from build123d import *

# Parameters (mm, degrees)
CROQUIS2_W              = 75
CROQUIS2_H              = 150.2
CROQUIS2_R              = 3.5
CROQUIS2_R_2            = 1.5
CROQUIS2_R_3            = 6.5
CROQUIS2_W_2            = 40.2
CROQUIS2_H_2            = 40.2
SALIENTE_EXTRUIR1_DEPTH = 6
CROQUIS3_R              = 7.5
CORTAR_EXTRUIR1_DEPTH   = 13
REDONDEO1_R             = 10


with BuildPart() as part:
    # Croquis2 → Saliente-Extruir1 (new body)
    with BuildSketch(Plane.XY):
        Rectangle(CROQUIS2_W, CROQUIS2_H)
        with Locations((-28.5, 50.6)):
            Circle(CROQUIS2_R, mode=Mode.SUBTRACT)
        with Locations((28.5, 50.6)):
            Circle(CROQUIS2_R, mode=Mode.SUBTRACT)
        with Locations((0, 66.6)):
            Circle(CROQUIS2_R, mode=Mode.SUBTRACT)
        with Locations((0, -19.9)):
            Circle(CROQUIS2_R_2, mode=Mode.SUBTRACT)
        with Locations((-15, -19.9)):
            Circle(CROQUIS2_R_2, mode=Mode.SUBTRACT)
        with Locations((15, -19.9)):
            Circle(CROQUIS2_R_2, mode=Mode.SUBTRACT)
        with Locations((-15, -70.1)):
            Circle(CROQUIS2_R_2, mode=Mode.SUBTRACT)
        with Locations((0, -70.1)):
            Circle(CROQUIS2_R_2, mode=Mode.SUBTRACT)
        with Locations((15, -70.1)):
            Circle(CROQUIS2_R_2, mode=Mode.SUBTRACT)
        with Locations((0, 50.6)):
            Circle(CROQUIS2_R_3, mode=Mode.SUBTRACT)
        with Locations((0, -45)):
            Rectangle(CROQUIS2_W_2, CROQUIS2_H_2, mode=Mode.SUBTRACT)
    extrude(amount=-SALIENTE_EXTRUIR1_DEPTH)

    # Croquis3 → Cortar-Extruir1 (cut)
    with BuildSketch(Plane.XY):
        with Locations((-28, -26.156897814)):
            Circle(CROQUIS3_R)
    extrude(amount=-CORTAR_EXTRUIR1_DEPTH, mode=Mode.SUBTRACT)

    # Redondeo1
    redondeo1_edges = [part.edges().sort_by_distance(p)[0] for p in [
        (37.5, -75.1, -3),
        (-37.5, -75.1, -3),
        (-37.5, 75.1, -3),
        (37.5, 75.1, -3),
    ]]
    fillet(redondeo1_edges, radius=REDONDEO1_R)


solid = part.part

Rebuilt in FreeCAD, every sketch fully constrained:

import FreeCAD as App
import Part
import Sketcher


def edges_at(feature, points):
    """Names of the edges that pass closest to the given points."""
    edges = feature.Shape.Edges
    near = lambda p: min(range(len(edges)), key=lambda i: edges[i].distToShape(Part.Vertex(*p))[0])
    return sorted({f"Edge{near(p) + 1}" for p in points})


def add_polygon(sketch, points):
    """Adds a closed chain of lines whose ends are joined by coincident constraints."""
    first, n = sketch.GeometryCount, len(points)
    for a, b in zip(points, points[1:] + points[:1]):
        sketch.addGeometry(Part.LineSegment(App.Vector(*a, 0), App.Vector(*b, 0)), False)
    for i in range(n):
        sketch.addConstraint(Sketcher.Constraint("Coincident", first + i, 2, first + (i + 1) % n, 1))

doc = App.newDocument("Part")
body = doc.addObject("PartDesign::Body", "Body")

# Sketch on XY plane
sketch1 = body.newObject("Sketcher::SketchObject", "Sketch")
sketch1.AttachmentSupport = (doc.getObject("XY_Plane"), [""])
sketch1.MapMode = "FlatFace"
add_polygon(sketch1, [(-37.5, 75.1), (-37.5, -75.1), (37.5, -75.1), (37.5, 75.1)])  # lines 0-3
sketch1.addGeometry(Part.Circle(App.Vector(-15, -70.1, 0), App.Vector(0, 0, 1), 1.5), False)  # 4
sketch1.addGeometry(Part.Circle(App.Vector(-15, -19.9, 0), App.Vector(0, 0, 1), 1.5), False)  # 5
sketch1.addGeometry(Part.Circle(App.Vector(0, -70.1, 0), App.Vector(0, 0, 1), 1.5), False)  # 6
sketch1.addGeometry(Part.Circle(App.Vector(15, -70.1, 0), App.Vector(0, 0, 1), 1.5), False)  # 7
add_polygon(sketch1, [(20.1, -65.1), (-20.1, -65.1), (-20.1, -24.9), (20.1, -24.9)])  # lines 8-11
sketch1.addGeometry(Part.Circle(App.Vector(0, -19.9, 0), App.Vector(0, 0, 1), 1.5), False)  # 12
sketch1.addGeometry(Part.Circle(App.Vector(15, -19.9, 0), App.Vector(0, 0, 1), 1.5), False)  # 13
sketch1.addGeometry(Part.Circle(App.Vector(-28.5, 50.6, 0), App.Vector(0, 0, 1), 3.5), False)  # 14
sketch1.addGeometry(Part.Circle(App.Vector(0, 50.6, 0), App.Vector(0, 0, 1), 6.5), False)  # 15
sketch1.addGeometry(Part.Circle(App.Vector(0, 66.6, 0), App.Vector(0, 0, 1), 3.5), False)  # 16
sketch1.addGeometry(Part.Circle(App.Vector(28.5, 50.6, 0), App.Vector(0, 0, 1), 3.5), False)  # 17
sketch1.addConstraint(Sketcher.Constraint("Vertical", 0))
sketch1.addConstraint(Sketcher.Constraint("Horizontal", 1))
sketch1.addConstraint(Sketcher.Constraint("Vertical", 2))
sketch1.addConstraint(Sketcher.Constraint("Horizontal", 3))
sketch1.addConstraint(Sketcher.Constraint("Horizontal", 8))
sketch1.addConstraint(Sketcher.Constraint("Vertical", 9))
sketch1.addConstraint(Sketcher.Constraint("Horizontal", 10))
sketch1.addConstraint(Sketcher.Constraint("Vertical", 11))
sketch1.addConstraint(Sketcher.Constraint("Equal", 4, 5))
sketch1.addConstraint(Sketcher.Constraint("Equal", 5, 6))
sketch1.addConstraint(Sketcher.Constraint("Equal", 6, 7))
sketch1.addConstraint(Sketcher.Constraint("Equal", 7, 12))
sketch1.addConstraint(Sketcher.Constraint("Equal", 12, 13))
sketch1.addConstraint(Sketcher.Constraint("Equal", 14, 16))
sketch1.addConstraint(Sketcher.Constraint("Equal", 16, 17))
sketch1.addConstraint(Sketcher.Constraint("Symmetric", 0, 2, 2, 2, -1, 1))
sketch1.addConstraint(Sketcher.Constraint("Symmetric", 4, 3, 7, 3, -2))
sketch1.addConstraint(Sketcher.Constraint("Symmetric", 5, 3, 13, 3, -2))
sketch1.addConstraint(Sketcher.Constraint("Symmetric", 14, 3, 17, 3, -2))
sketch1.addConstraint(Sketcher.Constraint("PointOnObject", 6, 3, -2))
sketch1.addConstraint(Sketcher.Constraint("PointOnObject", 12, 3, -2))
sketch1.addConstraint(Sketcher.Constraint("PointOnObject", 15, 3, -2))
sketch1.addConstraint(Sketcher.Constraint("PointOnObject", 16, 3, -2))
sketch1.addConstraint(Sketcher.Constraint("Horizontal", 4, 3, 6, 3))
sketch1.addConstraint(Sketcher.Constraint("Horizontal", 5, 3, 12, 3))
sketch1.addConstraint(Sketcher.Constraint("Horizontal", 14, 3, 15, 3))
sketch1.addConstraint(Sketcher.Constraint("Vertical", 4, 3, 5, 3))
sketch1.addConstraint(Sketcher.Constraint("Equal", 10, 9))
sketch1.addConstraint(Sketcher.Constraint("Diameter", 4, 3.0))
sketch1.addConstraint(Sketcher.Constraint("Diameter", 14, 7.0))
sketch1.addConstraint(Sketcher.Constraint("Diameter", 15, 13.0))
sketch1.addConstraint(Sketcher.Constraint("DistanceX", 1, 1, 1, 2, 75.0))
sketch1.addConstraint(Sketcher.Constraint("DistanceX", 8, 2, 8, 1, 40.2))
sketch1.addConstraint(Sketcher.Constraint("DistanceY", 0, 2, 0, 1, 150.2))
sketch1.addConstraint(Sketcher.Constraint("DistanceX", 4, 3, -1, 1, 15.0))
sketch1.addConstraint(Sketcher.Constraint("DistanceY", 15, 3, 16, 3, 16.0))
sketch1.addConstraint(Sketcher.Constraint("DistanceX", 14, 3, 17, 3, 57.0))
sketch1.addConstraint(Sketcher.Constraint("DistanceY", 0, 2, 4, 3, 5.0))
sketch1.addConstraint(Sketcher.Constraint("DistanceY", 13, 3, 2, 2, 95.0))
sketch1.addConstraint(Sketcher.Constraint("DistanceY", 4, 3, 8, 2, 5.0))
sketch1.addConstraint(Sketcher.Constraint("DistanceY", -1, 1, 14, 3, 50.6))
sketch1.addConstraint(Sketcher.Constraint("DistanceX", 8, 2, -1, 1, 20.1))
pad1 = body.newObject("PartDesign::Pad", "Pad")
pad1.Profile = sketch1
pad1.Length = 6
pad1.Reversed = True

# Sketch on XY plane
sketch2 = body.newObject("Sketcher::SketchObject", "Sketch001")
sketch2.AttachmentSupport = (doc.getObject("XY_Plane"), [""])
sketch2.MapMode = "FlatFace"
sketch2.addGeometry(Part.Circle(App.Vector(-28, -26.156898, 0), App.Vector(0, 0, 1), 7.5), False)
sketch2.addConstraint(Sketcher.Constraint("Diameter", 0, 15.0))
sketch2.addConstraint(Sketcher.Constraint("DistanceX", 0, 3, -1, 1, 28.0))
sketch2.addConstraint(Sketcher.Constraint("DistanceY", 0, 3, -1, 1, 26.156898))
pocket1 = body.newObject("PartDesign::Pocket", "Pocket")
pocket1.Profile = sketch2
pocket1.Length = 13
doc.recompute()

fillet = body.newObject("PartDesign::Fillet", "Fillet")
fillet.Base = (pocket1, edges_at(pocket1, [
    (37.5, -75.1, -3),
    (-37.5, -75.1, -3),
    (-37.5, 75.1, -3),
    (37.5, 75.1, -3),
]))
fillet.Radius = 10

doc.recompute()
